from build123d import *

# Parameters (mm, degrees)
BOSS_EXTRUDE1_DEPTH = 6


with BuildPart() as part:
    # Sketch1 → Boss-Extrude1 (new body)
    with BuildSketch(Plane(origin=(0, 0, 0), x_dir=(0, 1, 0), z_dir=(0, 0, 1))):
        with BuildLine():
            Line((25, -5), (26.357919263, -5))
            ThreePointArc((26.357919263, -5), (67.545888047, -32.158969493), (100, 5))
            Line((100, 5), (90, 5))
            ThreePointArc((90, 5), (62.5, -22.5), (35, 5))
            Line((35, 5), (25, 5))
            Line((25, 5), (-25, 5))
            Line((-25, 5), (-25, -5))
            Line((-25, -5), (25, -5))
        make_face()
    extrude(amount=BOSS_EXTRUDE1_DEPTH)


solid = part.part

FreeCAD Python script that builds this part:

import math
import FreeCAD as App
import Part
import Sketcher

doc = App.newDocument("Part")
body = doc.addObject("PartDesign::Body", "Body")

# Sketch on XY plane
sketch1 = body.newObject("Sketcher::SketchObject", "Sketch")
sketch1.AttachmentSupport = (doc.getObject("XY_Plane"), [""])
sketch1.MapMode = "FlatFace"
sketch1.addGeometry(Part.ArcOfCircle(Part.Circle(App.Vector(-5, 62, 0), App.Vector(0, 0, 1), 38), math.radians(-75), math.radians(90)), False)
sketch1.addGeometry(Part.LineSegment(App.Vector(-5, 100, 0), App.Vector(-5, 90, 0)), False)
sketch1.addGeometry(Part.ArcOfCircle(Part.Circle(App.Vector(-5, 62, 0), App.Vector(0, 0, 1), 28), math.radians(-90), math.radians(90)), False)
sketch1.addGeometry(Part.LineSegment(App.Vector(-5, 35, 0), App.Vector(-5, -25, 0)), False)
sketch1.addGeometry(Part.LineSegment(App.Vector(-5, -25, 0), App.Vector(5, -25, 0)), False)
sketch1.addGeometry(Part.LineSegment(App.Vector(5, -25, 0), App.Vector(5, 26, 0)), False)
sketch1.addConstraint(Sketcher.Constraint("Coincident", 0, 2, 1, 1))
sketch1.addConstraint(Sketcher.Constraint("Coincident", 1, 2, 2, 2))
sketch1.addConstraint(Sketcher.Constraint("Coincident", 2, 1, 3, 1))
sketch1.addConstraint(Sketcher.Constraint("Coincident", 3, 2, 4, 1))
sketch1.addConstraint(Sketcher.Constraint("Coincident", 4, 2, 5, 1))
sketch1.addConstraint(Sketcher.Constraint("Coincident", 5, 2, 0, 1))
sketch1.addConstraint(Sketcher.Constraint("Vertical", 1))
sketch1.addConstraint(Sketcher.Constraint("Vertical", 3))
sketch1.addConstraint(Sketcher.Constraint("Horizontal", 4))
sketch1.addConstraint(Sketcher.Constraint("Vertical", 5))
sketch1.addConstraint(Sketcher.Constraint("Coincident", 2, 3, 0, 3))
sketch1.addConstraint(Sketcher.Constraint("Vertical", 2, 3, 0, 2))
sketch1.addConstraint(Sketcher.Constraint("Vertical", 1, 2, 2, 1))
sketch1.addConstraint(Sketcher.Constraint("Equal", 4, 1))
sketch1.addConstraint(Sketcher.Constraint("Radius", 0, 37.5))
sketch1.addConstraint(Sketcher.Constraint("Radius", 2, 27.5))
sketch1.addConstraint(Sketcher.Constraint("DistanceY", 3, 2, 3, 1, 60.0))
sketch1.addConstraint(Sketcher.Constraint("DistanceX", 0, 3, -1, 1, 5.0))
sketch1.addConstraint(Sketcher.Constraint("DistanceY", -1, 1, 0, 2, 100.0))
pad1 = body.newObject("PartDesign::Pad", "Pad")
pad1.Profile = sketch1
pad1.Length = 6

doc.recompute()
